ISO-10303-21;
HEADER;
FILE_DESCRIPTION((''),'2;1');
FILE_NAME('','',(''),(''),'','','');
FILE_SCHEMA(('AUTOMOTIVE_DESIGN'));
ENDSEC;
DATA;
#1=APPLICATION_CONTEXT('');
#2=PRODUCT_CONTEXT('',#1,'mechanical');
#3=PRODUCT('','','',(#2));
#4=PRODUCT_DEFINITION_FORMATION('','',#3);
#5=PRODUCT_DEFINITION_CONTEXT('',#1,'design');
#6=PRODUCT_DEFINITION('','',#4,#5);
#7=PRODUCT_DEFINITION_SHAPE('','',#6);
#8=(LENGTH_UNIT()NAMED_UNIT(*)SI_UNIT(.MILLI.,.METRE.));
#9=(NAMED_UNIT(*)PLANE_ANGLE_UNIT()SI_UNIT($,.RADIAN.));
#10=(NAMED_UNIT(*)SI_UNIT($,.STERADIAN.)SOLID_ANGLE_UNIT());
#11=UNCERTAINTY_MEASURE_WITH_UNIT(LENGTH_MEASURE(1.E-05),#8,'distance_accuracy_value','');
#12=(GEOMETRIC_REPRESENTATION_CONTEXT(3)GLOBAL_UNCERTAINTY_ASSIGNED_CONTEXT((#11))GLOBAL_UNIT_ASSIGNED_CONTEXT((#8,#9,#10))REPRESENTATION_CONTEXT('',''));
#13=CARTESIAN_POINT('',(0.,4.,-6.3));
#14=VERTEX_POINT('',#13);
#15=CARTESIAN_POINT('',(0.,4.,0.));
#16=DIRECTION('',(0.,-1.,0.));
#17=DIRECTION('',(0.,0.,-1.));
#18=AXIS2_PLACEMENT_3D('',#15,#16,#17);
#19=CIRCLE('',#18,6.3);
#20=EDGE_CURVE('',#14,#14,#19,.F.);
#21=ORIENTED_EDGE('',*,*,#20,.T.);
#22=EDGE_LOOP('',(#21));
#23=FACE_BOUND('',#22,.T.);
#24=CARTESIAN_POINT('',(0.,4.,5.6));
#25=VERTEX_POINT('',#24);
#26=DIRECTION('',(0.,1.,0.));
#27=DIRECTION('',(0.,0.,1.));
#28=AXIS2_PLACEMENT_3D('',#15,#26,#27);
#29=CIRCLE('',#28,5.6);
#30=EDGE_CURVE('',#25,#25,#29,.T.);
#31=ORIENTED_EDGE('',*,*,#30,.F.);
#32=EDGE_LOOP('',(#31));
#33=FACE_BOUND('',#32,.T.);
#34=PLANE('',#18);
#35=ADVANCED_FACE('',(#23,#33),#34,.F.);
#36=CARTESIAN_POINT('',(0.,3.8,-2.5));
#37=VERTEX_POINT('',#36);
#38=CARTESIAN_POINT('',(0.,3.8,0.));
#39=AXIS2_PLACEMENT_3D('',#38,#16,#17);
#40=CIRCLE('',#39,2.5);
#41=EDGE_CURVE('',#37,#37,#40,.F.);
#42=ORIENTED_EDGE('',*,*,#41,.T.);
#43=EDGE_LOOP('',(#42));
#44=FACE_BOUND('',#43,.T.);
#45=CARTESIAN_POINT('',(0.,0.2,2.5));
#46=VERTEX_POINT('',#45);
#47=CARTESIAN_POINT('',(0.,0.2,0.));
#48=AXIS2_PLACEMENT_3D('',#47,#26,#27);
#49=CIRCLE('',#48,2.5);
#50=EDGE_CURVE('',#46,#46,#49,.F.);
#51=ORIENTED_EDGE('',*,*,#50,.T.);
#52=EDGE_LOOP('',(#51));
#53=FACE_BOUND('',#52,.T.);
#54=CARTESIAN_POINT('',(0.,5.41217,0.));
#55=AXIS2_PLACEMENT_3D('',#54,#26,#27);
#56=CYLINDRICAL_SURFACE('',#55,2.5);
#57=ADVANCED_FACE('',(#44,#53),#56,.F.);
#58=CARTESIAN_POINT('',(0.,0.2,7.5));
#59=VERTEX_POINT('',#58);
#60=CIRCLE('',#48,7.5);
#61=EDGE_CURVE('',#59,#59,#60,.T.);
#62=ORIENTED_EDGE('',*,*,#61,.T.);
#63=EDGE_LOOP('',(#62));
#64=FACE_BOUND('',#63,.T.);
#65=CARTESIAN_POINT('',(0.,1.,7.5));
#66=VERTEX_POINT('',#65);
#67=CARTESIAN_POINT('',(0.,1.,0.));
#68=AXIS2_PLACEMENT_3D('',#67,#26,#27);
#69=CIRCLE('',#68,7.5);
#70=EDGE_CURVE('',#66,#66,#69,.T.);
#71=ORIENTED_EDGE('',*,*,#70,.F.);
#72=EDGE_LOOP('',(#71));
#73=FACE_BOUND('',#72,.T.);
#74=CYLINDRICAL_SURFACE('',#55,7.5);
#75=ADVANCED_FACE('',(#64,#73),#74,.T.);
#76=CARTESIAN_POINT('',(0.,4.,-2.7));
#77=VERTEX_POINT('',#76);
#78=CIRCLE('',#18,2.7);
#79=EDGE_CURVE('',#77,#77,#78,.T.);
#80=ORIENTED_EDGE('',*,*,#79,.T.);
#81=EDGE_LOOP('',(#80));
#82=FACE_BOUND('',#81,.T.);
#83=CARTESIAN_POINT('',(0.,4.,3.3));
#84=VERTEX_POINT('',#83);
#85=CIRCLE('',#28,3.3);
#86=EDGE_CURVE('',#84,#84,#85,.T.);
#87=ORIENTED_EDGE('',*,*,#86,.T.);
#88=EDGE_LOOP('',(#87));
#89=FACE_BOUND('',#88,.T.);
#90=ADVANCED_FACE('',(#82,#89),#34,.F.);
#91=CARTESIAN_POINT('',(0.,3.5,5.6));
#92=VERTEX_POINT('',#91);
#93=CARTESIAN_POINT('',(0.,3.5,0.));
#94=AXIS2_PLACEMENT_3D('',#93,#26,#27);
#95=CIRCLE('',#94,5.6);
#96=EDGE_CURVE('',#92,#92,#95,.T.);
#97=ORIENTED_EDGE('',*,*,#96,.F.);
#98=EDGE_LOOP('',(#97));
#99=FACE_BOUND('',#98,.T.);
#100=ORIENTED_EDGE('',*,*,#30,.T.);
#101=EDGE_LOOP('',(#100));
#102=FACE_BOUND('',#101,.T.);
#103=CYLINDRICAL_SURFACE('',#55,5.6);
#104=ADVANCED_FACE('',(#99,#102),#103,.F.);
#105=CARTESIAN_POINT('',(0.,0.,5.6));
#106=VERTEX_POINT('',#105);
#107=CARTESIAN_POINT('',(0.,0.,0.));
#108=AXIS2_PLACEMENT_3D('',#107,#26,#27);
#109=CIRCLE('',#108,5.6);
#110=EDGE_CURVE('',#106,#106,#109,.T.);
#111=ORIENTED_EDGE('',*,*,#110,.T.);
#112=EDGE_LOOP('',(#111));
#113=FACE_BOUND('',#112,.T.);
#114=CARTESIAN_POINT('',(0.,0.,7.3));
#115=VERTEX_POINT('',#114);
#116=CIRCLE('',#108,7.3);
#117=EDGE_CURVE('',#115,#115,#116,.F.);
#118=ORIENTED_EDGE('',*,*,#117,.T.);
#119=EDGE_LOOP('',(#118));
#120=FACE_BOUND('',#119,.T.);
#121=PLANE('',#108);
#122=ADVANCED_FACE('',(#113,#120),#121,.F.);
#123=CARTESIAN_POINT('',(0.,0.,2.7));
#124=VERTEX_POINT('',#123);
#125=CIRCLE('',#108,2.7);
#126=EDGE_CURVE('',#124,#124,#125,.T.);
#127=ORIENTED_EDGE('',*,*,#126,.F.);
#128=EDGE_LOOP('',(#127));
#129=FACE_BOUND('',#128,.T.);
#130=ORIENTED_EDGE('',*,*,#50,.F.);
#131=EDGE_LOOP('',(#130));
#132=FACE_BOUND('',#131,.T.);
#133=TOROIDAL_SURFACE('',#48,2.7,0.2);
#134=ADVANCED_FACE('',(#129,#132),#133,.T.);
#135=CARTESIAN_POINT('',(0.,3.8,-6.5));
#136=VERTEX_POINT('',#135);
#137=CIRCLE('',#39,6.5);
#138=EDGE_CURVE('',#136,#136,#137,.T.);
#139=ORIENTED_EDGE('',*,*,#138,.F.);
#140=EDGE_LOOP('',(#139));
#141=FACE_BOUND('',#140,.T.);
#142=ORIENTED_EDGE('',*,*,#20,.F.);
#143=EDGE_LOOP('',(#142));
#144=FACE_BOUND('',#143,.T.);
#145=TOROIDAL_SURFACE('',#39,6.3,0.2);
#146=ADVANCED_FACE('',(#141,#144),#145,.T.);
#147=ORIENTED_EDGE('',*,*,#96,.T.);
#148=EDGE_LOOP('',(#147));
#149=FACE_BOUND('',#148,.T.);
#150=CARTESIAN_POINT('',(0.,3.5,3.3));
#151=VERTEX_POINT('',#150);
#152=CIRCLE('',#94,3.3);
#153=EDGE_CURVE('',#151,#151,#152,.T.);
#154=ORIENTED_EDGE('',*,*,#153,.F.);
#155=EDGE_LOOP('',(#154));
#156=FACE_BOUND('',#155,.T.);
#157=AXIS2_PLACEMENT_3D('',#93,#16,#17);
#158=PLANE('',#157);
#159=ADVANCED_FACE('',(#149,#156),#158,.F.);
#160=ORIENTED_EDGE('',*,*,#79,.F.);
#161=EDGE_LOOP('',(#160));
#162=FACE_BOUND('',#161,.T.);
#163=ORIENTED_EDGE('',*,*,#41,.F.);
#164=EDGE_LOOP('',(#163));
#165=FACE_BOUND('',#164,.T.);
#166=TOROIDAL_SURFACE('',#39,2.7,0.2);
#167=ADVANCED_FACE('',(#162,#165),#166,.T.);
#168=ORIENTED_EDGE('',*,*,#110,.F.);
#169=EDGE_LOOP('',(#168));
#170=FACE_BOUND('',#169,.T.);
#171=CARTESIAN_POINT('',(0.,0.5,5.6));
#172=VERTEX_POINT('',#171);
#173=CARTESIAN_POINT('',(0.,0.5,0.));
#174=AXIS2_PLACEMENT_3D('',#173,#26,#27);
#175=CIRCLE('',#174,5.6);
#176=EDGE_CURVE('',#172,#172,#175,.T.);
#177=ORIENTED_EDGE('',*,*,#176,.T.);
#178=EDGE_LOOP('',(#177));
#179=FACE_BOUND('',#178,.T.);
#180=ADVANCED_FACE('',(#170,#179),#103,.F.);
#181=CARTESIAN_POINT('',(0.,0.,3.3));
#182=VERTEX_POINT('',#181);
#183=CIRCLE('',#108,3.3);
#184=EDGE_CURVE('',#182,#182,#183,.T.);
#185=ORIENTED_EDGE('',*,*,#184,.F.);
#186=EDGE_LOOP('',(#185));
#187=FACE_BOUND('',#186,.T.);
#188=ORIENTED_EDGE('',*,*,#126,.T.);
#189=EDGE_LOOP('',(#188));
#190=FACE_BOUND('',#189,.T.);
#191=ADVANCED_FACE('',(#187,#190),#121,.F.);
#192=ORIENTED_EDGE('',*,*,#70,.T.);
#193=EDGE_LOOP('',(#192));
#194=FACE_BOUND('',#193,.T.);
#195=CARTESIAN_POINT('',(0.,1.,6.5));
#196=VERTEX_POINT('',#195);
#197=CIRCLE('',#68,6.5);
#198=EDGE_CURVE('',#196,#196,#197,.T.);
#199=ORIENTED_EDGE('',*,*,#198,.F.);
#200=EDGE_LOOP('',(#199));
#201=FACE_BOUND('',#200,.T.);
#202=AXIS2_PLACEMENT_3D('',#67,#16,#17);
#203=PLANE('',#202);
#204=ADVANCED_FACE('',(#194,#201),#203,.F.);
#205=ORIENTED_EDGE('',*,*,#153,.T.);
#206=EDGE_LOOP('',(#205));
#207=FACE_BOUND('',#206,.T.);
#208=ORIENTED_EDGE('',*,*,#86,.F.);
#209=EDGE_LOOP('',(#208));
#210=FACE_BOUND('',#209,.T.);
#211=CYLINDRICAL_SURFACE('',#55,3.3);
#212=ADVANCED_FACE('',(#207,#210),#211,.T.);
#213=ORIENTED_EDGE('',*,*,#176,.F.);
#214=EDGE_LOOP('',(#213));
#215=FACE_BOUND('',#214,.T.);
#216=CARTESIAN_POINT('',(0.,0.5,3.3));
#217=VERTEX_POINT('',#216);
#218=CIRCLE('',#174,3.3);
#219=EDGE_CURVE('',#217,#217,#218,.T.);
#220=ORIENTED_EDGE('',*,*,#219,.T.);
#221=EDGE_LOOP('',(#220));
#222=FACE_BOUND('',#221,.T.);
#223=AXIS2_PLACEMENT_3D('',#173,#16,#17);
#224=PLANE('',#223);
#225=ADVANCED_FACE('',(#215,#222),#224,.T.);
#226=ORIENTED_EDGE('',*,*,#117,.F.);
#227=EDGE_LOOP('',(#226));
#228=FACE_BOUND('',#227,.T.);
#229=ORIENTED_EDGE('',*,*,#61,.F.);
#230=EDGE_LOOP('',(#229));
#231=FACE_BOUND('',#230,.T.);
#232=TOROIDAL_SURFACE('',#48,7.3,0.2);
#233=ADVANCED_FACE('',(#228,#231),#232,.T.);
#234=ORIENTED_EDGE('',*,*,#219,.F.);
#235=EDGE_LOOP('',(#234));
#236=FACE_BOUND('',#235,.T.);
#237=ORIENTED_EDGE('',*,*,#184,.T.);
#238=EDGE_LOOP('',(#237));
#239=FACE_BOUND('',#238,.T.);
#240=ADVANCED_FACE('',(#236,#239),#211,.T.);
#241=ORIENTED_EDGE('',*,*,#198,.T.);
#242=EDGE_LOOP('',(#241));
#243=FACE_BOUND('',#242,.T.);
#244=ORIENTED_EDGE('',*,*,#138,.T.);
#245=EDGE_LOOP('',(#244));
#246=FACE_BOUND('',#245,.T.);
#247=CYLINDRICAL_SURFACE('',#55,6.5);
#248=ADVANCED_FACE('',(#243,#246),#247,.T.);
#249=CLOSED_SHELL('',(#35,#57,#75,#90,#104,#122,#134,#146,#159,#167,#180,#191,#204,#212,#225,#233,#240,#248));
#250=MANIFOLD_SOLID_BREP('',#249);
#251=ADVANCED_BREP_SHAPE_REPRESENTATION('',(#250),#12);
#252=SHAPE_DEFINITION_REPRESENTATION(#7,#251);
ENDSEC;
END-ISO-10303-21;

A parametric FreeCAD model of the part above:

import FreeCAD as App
import Part
import Sketcher
Q = App.Units.Quantity


def edges_at(feature, points):
    """Names of the edges that pass closest to the given points."""
    edges = feature.Shape.Edges
    near = lambda p: min(range(len(edges)), key=lambda i: edges[i].distToShape(Part.Vertex(*p))[0])
    return sorted({f"Edge{near(p) + 1}" for p in points})


def add_polygon(sketch, points):
    """Adds a closed chain of lines whose ends are joined by coincident constraints."""
    first, n = sketch.GeometryCount, len(points)
    for a, b in zip(points, points[1:] + points[:1]):
        sketch.addGeometry(Part.LineSegment(App.Vector(*a, 0), App.Vector(*b, 0)), False)
    for i in range(n):
        sketch.addConstraint(Sketcher.Constraint("Coincident", first + i, 2, first + (i + 1) % n, 1))

doc = App.newDocument("Part")
body = doc.addObject("PartDesign::Body", "Body")

sketch1 = body.newObject("Sketcher::SketchObject", "Sketch")
sketch1.AttachmentSupport = (doc.getObject("XY_Plane"), [""])
sketch1.MapMode = "FlatFace"
add_polygon(sketch1, [(2.5, 4), (2.5, 0), (3.3, 0), (3.3, 0.5), (5.6, 0.5), (5.6, 0), (7.5, 0), (7.5, 1), (6.5, 1), (6.5, 4), (5.6, 4), (5.6, 3.5), (3.3, 3.5), (3.3, 4)])
sketch1.addConstraint([
    Sketcher.Constraint("Vertical", 0),
    Sketcher.Constraint("Horizontal", 1),
    Sketcher.Constraint("Vertical", 2),
    Sketcher.Constraint("Horizontal", 3),
    Sketcher.Constraint("Vertical", 4),
    Sketcher.Constraint("Horizontal", 5),
    Sketcher.Constraint("Vertical", 6),
    Sketcher.Constraint("Horizontal", 7),
    Sketcher.Constraint("Vertical", 8),
    Sketcher.Constraint("Horizontal", 9),
    Sketcher.Constraint("Vertical", 10),
    Sketcher.Constraint("Horizontal", 11),
    Sketcher.Constraint("Vertical", 12),
    Sketcher.Constraint("Horizontal", 13),
    Sketcher.Constraint("PointOnObject", 0, 2, -1),
    Sketcher.Constraint("PointOnObject", 4, 2, -1),
    Sketcher.Constraint("Horizontal", 9, 2, 12, 2),
    Sketcher.Constraint("Vertical", 4, 2, 9, 2),
    Sketcher.Constraint("Vertical", 2, 2, 11, 2),
    Sketcher.Constraint("Equal", 7, 6),
    Sketcher.Constraint("Equal", 4, 10),
    Sketcher.Constraint("DistanceX", 7, 2, 7, 1, Q("1 mm")),
    Sketcher.Constraint("DistanceY", 0, 2, 0, 1, Q("4 mm")),
    Sketcher.Constraint("DistanceX", 1, 1, 1, 2, Q("0.8 mm")),
    Sketcher.Constraint("DistanceX", 3, 1, 3, 2, Q("2.3 mm")),
    Sketcher.Constraint("DistanceX", 5, 1, 5, 2, Q("1.9 mm")),
    Sketcher.Constraint("DistanceY", 2, 1, 2, 2, Q("0.5 mm")),
    Sketcher.Constraint("DistanceX", -1, 1, 0, 2, Q("2.5 mm")),
])
revolution = body.newObject("PartDesign::Revolution", "Revolution")
revolution.Profile = sketch1
revolution.ReferenceAxis = (sketch1, ["V_Axis"])
revolution.Angle = 360
doc.recompute()

fillet = body.newObject("PartDesign::Fillet", "Fillet")
fillet.Base = (revolution, edges_at(revolution, [
    (0, 0, -2.5),
    (0, 4, -2.5),
    (0, 4, -6.5),
    (0, 0, -7.5),
]))
fillet.Radius = 0.2

doc.recompute()
